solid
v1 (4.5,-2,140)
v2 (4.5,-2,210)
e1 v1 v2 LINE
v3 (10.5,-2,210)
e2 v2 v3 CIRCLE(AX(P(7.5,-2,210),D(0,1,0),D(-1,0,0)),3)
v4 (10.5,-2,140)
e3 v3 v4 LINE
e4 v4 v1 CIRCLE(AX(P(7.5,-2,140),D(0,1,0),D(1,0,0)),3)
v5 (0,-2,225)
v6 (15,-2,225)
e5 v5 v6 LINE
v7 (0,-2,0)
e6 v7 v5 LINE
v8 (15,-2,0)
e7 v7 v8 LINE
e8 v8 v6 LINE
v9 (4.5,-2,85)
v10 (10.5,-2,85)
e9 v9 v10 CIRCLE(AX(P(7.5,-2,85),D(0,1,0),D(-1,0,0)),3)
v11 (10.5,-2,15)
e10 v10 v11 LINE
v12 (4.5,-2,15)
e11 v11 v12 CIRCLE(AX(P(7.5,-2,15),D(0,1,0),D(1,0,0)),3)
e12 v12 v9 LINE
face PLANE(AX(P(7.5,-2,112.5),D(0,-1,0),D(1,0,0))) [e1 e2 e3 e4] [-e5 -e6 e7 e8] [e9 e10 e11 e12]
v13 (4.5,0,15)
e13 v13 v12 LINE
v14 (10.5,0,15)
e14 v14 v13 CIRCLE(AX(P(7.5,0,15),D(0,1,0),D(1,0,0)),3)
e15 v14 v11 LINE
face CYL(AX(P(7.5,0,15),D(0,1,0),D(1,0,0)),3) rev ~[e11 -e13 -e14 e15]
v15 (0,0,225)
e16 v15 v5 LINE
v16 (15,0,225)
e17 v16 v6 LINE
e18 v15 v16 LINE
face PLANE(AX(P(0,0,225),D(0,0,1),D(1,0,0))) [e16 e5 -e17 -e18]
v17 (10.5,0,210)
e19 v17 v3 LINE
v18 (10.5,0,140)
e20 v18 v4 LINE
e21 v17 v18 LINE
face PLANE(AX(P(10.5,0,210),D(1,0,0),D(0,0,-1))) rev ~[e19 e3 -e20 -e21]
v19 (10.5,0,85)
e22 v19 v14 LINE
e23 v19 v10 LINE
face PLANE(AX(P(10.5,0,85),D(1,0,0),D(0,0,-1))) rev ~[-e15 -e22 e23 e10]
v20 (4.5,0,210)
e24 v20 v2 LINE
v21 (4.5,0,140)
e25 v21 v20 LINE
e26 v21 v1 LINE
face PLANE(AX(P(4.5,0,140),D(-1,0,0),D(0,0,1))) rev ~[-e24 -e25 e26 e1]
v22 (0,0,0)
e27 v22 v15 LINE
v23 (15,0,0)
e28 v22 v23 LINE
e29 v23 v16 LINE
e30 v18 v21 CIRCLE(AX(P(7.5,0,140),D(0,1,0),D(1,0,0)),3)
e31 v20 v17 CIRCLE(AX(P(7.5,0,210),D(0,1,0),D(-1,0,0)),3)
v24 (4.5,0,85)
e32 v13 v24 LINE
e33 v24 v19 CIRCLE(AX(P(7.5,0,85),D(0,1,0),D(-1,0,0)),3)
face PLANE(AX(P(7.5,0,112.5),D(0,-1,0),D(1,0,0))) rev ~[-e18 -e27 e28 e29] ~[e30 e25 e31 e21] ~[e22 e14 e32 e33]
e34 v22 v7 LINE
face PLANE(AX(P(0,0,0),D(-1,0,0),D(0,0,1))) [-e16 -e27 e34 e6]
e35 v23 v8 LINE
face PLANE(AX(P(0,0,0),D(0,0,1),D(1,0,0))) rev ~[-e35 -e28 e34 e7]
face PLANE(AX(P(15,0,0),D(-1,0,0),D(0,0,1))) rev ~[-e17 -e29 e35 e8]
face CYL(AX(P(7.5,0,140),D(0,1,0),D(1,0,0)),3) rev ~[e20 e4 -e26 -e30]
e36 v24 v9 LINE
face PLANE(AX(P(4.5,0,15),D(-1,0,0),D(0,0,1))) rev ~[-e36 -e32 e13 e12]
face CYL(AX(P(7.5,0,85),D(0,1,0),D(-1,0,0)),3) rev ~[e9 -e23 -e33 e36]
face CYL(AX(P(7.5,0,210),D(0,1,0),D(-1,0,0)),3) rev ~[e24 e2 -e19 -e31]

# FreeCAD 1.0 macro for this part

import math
import FreeCAD as App
import Part
import Sketcher

V = App.Vector

doc = App.newDocument("Part")
body = doc.addObject("PartDesign::Body", "Body")

sketch1 = body.newObject("Sketcher::SketchObject", "Sketch")
sketch1.AttachmentSupport = (doc.getObject("XZ_Plane"), [""])
sketch1.MapMode = "FlatFace"
sketch1.addGeometry([
    Part.LineSegment(V(0, 225, 0), V(0, 0, 0)),
    Part.LineSegment(V(0, 0, 0), V(15, 0, 0)),
    Part.LineSegment(V(15, 0, 0), V(15, 225, 0)),
    Part.LineSegment(V(15, 225, 0), V(0, 225, 0)),
    Part.ArcOfCircle(Part.Circle(V(7.5, 15, 0), V(0, 0, 1), 3), math.radians(180), math.radians(360)),
    Part.LineSegment(V(4.5, 15, 0), V(4.5, 85, 0)),
    Part.ArcOfCircle(Part.Circle(V(7.5, 85, 0), V(0, 0, 1), 3), math.radians(0), math.radians(180)),
    Part.LineSegment(V(10.5, 85, 0), V(10.5, 15, 0)),
    Part.LineSegment(V(4.5, 140, 0), V(4.5, 210, 0)),
    Part.ArcOfCircle(Part.Circle(V(7.5, 210, 0), V(0, 0, 1), 3), math.radians(0), math.radians(180)),
    Part.LineSegment(V(10.5, 210, 0), V(10.5, 140, 0)),
    Part.ArcOfCircle(Part.Circle(V(7.5, 140, 0), V(0, 0, 1), 3), math.radians(180), math.radians(360)),
], False)
sketch1.addConstraint([
    Sketcher.Constraint("Coincident", 0, 2, 1, 1),
    Sketcher.Constraint("Coincident", 1, 2, 2, 1),
    Sketcher.Constraint("Coincident", 2, 2, 3, 1),
    Sketcher.Constraint("Coincident", 3, 2, 0, 1),
    Sketcher.Constraint("Tangent", 4, 1, 5, 1),
    Sketcher.Constraint("Tangent", 5, 2, 6, 2),
    Sketcher.Constraint("Tangent", 6, 1, 7, 1),
    Sketcher.Constraint("Tangent", 7, 2, 4, 2),
    Sketcher.Constraint("Tangent", 8, 2, 9, 2),
    Sketcher.Constraint("Tangent", 9, 1, 10, 1),
    Sketcher.Constraint("Tangent", 10, 2, 11, 2),
    Sketcher.Constraint("Tangent", 11, 1, 8, 1),
    Sketcher.Constraint("Vertical", 0),
    Sketcher.Constraint("Horizontal", 1),
    Sketcher.Constraint("Vertical", 2),
    Sketcher.Constraint("Horizontal", 3),
    Sketcher.Constraint("Vertical", 5),
    Sketcher.Constraint("Vertical", 7),
    Sketcher.Constraint("Vertical", 8),
    Sketcher.Constraint("Vertical", 10),
    Sketcher.Constraint("Coincident", 0, 2, -1, 1),
    Sketcher.Constraint("Equal", 6, 9),
    Sketcher.Constraint("Vertical", 6, 3, 9, 3),
    Sketcher.Constraint("Equal", 7, 8),
    Sketcher.Constraint("Radius", 4, 3.0),
    Sketcher.Constraint("DistanceX", 1, 1, 1, 2, 15.0),
    Sketcher.Constraint("DistanceY", 0, 2, 0, 1, 225.0),
    Sketcher.Constraint("DistanceY", 5, 1, 5, 2, 70.0),
    Sketcher.Constraint("DistanceY", -1, 1, 4, 3, 15.0),
    Sketcher.Constraint("DistanceY", -1, 1, 9, 3, 210.0),
    Sketcher.Constraint("DistanceX", -1, 1, 4, 3, 7.5),
])
pad1 = body.newObject("PartDesign::Pad", "Pad")
pad1.Profile = sketch1
pad1.Length = 2

doc.recompute()
